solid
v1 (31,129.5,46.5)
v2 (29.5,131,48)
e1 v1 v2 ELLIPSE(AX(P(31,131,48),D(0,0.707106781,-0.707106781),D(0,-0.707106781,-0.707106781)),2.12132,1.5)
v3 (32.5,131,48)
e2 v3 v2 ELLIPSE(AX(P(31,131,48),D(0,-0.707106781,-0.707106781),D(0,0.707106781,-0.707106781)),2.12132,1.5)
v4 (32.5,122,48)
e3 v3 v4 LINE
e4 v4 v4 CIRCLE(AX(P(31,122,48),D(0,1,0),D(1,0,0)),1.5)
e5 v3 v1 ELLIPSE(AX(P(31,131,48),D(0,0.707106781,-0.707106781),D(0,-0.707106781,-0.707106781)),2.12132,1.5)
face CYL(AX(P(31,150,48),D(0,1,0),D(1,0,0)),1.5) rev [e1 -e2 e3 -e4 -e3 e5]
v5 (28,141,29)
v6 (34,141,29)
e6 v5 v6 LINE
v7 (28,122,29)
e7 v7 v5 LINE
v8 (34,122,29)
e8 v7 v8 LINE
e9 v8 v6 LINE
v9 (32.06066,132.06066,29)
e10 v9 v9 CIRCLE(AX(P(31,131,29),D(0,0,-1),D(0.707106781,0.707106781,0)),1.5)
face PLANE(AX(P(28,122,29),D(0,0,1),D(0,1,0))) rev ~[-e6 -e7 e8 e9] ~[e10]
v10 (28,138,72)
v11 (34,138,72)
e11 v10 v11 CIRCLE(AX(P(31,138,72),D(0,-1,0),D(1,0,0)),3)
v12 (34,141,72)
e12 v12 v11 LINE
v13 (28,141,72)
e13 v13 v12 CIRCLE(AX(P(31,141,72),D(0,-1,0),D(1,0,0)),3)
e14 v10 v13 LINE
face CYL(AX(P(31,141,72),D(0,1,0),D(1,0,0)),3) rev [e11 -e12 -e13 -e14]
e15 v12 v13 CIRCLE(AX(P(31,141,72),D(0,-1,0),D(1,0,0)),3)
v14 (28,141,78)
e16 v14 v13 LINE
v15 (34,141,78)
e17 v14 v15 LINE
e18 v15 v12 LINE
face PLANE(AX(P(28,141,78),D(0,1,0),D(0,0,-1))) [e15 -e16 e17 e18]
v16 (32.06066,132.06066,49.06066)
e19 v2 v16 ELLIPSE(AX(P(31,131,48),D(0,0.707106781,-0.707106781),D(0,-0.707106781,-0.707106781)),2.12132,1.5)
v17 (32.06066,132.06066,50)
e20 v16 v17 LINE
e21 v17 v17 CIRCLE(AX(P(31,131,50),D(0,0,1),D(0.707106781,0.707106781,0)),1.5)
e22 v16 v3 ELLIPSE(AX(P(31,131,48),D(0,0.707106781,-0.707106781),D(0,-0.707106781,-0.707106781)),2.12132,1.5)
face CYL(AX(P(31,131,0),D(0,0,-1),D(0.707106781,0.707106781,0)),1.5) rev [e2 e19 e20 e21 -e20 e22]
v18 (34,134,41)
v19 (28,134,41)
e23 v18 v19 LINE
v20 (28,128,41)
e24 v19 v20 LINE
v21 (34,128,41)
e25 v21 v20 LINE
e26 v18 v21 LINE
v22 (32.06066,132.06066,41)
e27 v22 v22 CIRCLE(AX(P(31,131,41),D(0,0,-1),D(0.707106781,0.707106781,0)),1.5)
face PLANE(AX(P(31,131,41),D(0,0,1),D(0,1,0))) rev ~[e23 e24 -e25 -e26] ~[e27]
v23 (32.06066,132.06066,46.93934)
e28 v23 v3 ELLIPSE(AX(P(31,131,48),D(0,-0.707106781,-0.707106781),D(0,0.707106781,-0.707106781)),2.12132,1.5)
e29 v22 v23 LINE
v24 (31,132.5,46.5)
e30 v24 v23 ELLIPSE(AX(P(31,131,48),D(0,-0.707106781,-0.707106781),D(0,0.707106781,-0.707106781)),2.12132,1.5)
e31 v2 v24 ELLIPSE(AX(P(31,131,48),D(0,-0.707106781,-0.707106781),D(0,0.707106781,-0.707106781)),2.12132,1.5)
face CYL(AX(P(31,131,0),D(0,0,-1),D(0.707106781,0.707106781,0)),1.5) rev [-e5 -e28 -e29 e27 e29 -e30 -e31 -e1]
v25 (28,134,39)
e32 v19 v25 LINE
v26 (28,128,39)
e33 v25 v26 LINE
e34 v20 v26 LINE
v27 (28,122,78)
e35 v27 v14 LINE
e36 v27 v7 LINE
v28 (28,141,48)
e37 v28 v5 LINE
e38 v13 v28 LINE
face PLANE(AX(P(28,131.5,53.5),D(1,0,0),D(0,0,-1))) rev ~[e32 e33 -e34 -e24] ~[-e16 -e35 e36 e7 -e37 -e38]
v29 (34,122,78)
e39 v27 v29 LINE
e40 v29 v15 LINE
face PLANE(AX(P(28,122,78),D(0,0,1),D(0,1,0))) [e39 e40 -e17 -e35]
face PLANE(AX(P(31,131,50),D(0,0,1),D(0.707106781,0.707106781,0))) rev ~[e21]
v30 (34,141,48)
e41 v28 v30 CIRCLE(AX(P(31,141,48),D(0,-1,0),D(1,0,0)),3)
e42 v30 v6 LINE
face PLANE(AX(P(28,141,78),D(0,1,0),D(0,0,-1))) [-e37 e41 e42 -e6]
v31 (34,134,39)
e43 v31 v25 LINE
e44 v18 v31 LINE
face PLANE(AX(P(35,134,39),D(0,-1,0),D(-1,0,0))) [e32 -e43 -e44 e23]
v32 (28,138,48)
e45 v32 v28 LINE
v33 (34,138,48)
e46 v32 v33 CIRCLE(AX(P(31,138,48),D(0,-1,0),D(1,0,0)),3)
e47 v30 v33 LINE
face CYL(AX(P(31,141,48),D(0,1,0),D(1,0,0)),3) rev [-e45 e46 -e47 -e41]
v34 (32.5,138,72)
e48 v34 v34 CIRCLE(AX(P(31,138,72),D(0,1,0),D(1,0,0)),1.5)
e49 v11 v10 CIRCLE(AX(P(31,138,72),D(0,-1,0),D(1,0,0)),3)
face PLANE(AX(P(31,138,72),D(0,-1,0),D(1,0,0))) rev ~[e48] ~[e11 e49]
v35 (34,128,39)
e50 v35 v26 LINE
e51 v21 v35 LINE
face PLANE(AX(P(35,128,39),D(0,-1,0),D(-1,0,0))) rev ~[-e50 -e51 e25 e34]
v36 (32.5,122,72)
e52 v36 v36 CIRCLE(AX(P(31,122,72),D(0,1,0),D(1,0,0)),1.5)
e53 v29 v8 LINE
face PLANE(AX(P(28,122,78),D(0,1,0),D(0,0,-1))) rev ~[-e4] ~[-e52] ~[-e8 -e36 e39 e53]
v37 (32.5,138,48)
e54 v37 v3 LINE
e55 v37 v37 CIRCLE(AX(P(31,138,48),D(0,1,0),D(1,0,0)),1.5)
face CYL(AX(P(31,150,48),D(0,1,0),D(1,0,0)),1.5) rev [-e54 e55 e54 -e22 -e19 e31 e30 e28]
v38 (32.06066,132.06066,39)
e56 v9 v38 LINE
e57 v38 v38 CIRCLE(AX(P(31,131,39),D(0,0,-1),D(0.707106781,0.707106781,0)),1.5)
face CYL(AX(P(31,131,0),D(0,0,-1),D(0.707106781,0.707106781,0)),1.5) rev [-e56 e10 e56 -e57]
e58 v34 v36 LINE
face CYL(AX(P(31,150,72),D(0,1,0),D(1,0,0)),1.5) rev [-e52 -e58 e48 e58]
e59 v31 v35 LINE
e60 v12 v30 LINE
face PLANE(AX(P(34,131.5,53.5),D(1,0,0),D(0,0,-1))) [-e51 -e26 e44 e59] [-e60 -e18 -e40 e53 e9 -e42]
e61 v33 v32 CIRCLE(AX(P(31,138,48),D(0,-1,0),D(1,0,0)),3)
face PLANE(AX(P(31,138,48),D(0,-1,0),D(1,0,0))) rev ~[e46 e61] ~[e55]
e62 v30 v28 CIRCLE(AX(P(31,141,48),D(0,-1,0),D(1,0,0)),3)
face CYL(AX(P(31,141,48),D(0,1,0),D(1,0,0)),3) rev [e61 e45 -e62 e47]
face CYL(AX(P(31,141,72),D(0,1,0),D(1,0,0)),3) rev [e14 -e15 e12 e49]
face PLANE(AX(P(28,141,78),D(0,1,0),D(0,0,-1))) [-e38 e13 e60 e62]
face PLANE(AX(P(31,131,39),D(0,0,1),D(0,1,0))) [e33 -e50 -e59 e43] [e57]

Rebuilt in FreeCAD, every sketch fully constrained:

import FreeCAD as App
import Part
import Sketcher
from FreeCAD import Vector
Q = App.Units.Quantity


def add_polygon(sketch, points):
    """Adds a closed chain of lines whose ends are joined by coincident constraints."""
    first, n = sketch.GeometryCount, len(points)
    for a, b in zip(points, points[1:] + points[:1]):
        sketch.addGeometry(Part.LineSegment(App.Vector(*a, 0), App.Vector(*b, 0)), False)
    for i in range(n):
        sketch.addConstraint(Sketcher.Constraint("Coincident", first + i, 2, first + (i + 1) % n, 1))

doc = App.newDocument("Part")
body = doc.addObject("PartDesign::Body", "Body")

sketch1 = body.newObject("Sketcher::SketchObject", "Sketch")
sketch1.AttachmentSupport = (doc.getObject("XZ_Plane"), [""])
sketch1.MapMode = "FlatFace"
sketch1.AttachmentOffset = App.Placement(Vector(0, 0, -150), App.Rotation())
sketch1.addGeometry(Part.Circle(Vector(-31, 72, 0), Vector(0, 0, 1), 3), False)
sketch1.addConstraint([
    Sketcher.Constraint("Diameter", 0, Q("6 mm")),
    Sketcher.Constraint("DistanceX", 0, 3, -1, 1, Q("31 mm")),
    Sketcher.Constraint("DistanceY", -1, 1, 0, 3, Q("72 mm")),
])
pad1 = body.newObject("PartDesign::Pad", "Pad")
pad1.Profile = sketch1
pad1.Length = 3
body2 = doc.addObject("PartDesign::Body", "Body001")

sketch2 = body2.newObject("Sketcher::SketchObject", "Sketch001")
sketch2.AttachmentSupport = (doc.getObject("XZ_Plane001"), [""])
sketch2.MapMode = "FlatFace"
sketch2.AttachmentOffset = App.Placement(Vector(0, 0, -150), App.Rotation())
sketch2.addGeometry(Part.Circle(Vector(31, 48, 0), Vector(0, 0, 1), 3), False)
sketch2.addConstraint([
    Sketcher.Constraint("Diameter", 0, Q("6 mm")),
    Sketcher.Constraint("DistanceX", -1, 1, 0, 3, Q("31 mm")),
    Sketcher.Constraint("DistanceY", -1, 1, 0, 3, Q("48 mm")),
])
pad2 = body2.newObject("PartDesign::Pad", "Pad001")
pad2.Profile = sketch2
pad2.Length = 3
body3 = doc.addObject("PartDesign::Body", "Body002")

sketch3 = body3.newObject("Sketcher::SketchObject", "Sketch002")
sketch3.AttachmentSupport = (doc.getObject("XZ_Plane002"), [""])
sketch3.MapMode = "FlatFace"
sketch3.AttachmentOffset = App.Placement(Vector(0, 0, -150), App.Rotation())
sketch3.addGeometry(Part.Circle(Vector(31, 72, 0), Vector(0, 0, 1), 3), False)
sketch3.addConstraint([
    Sketcher.Constraint("Diameter", 0, Q("6 mm")),
    Sketcher.Constraint("DistanceX", -1, 1, 0, 3, Q("31 mm")),
    Sketcher.Constraint("DistanceY", -1, 1, 0, 3, Q("72 mm")),
])
pad3 = body3.newObject("PartDesign::Pad", "Pad002")
pad3.Profile = sketch3
pad3.Length = 3
body4 = doc.addObject("PartDesign::Body", "Body003")
body4.AllowCompound = True

sketch4 = body4.newObject("Sketcher::SketchObject", "Sketch003")
sketch4.AttachmentSupport = (doc.getObject("XZ_Plane003"), [""])
sketch4.MapMode = "FlatFace"
sketch4.AttachmentOffset = App.Placement(Vector(0, 0, -150), App.Rotation())
sketch4.addGeometry(Part.Circle(Vector(-31, 48, 0), Vector(0, 0, 1), 3), False)
sketch4.addConstraint([
    Sketcher.Constraint("Diameter", 0, Q("6 mm")),
    Sketcher.Constraint("DistanceX", 0, 3, -1, 1, Q("31 mm")),
    Sketcher.Constraint("DistanceY", -1, 1, 0, 3, Q("48 mm")),
])
pad4 = body4.newObject("PartDesign::Pad", "Pad003")
pad4.Profile = sketch4
pad4.Length = 3
doc.recompute()

boolean = body4.newObject("PartDesign::Boolean", "Boolean")
boolean.Type = "Fuse"
boolean.addObjects([body])
doc.recompute()

boolean2 = body4.newObject("PartDesign::Boolean", "Boolean001")
boolean2.Type = "Fuse"
boolean2.addObjects([body2])
doc.recompute()

boolean3 = body4.newObject("PartDesign::Boolean", "Boolean002")
boolean3.Type = "Fuse"
boolean3.addObjects([body3])
body5 = doc.addObject("PartDesign::Body", "Body004")
body5.AllowCompound = True
doc.recompute()

body4.Placement = App.Placement(Vector(0, -9, 0), App.Rotation(Vector(0, 0, 1), 0))
boolean4 = body5.newObject("PartDesign::Boolean", "Boolean003")
boolean4.Type = "Fuse"
boolean4.addObjects([body4])
body6 = doc.addObject("PartDesign::Body", "Body005")

sketch5 = body6.newObject("Sketcher::SketchObject", "Sketch004")
sketch5.AttachmentSupport = (doc.getObject("XZ_Plane005"), [""])
sketch5.MapMode = "FlatFace"
sketch5.AttachmentOffset = App.Placement(Vector(0, 0, -150), App.Rotation())
sketch5.addGeometry(Part.Circle(Vector(-31, 72, 0), Vector(0, 0, 1), 1.5), False)
sketch5.addConstraint([
    Sketcher.Constraint("Diameter", 0, Q("3 mm")),
    Sketcher.Constraint("DistanceX", 0, 3, -1, 1, Q("31 mm")),
    Sketcher.Constraint("DistanceY", -1, 1, 0, 3, Q("72 mm")),
])
pad5 = body6.newObject("PartDesign::Pad", "Pad004")
pad5.Profile = sketch5
pad5.Length = 50
body7 = doc.addObject("PartDesign::Body", "Body006")

sketch6 = body7.newObject("Sketcher::SketchObject", "Sketch005")
sketch6.AttachmentSupport = (doc.getObject("XZ_Plane006"), [""])
sketch6.MapMode = "FlatFace"
sketch6.AttachmentOffset = App.Placement(Vector(0, 0, -150), App.Rotation())
sketch6.addGeometry(Part.Circle(Vector(31, 48, 0), Vector(0, 0, 1), 1.5), False)
sketch6.addConstraint([
    Sketcher.Constraint("Diameter", 0, Q("3 mm")),
    Sketcher.Constraint("DistanceX", -1, 1, 0, 3, Q("31 mm")),
    Sketcher.Constraint("DistanceY", -1, 1, 0, 3, Q("48 mm")),
])
pad6 = body7.newObject("PartDesign::Pad", "Pad005")
pad6.Profile = sketch6
pad6.Length = 50
body8 = doc.addObject("PartDesign::Body", "Body007")

sketch7 = body8.newObject("Sketcher::SketchObject", "Sketch006")
sketch7.AttachmentSupport = (doc.getObject("XZ_Plane007"), [""])
sketch7.MapMode = "FlatFace"
sketch7.AttachmentOffset = App.Placement(Vector(0, 0, -150), App.Rotation())
sketch7.addGeometry(Part.Circle(Vector(31, 72, 0), Vector(0, 0, 1), 1.5), False)
sketch7.addConstraint([
    Sketcher.Constraint("Diameter", 0, Q("3 mm")),
    Sketcher.Constraint("DistanceX", -1, 1, 0, 3, Q("31 mm")),
    Sketcher.Constraint("DistanceY", -1, 1, 0, 3, Q("72 mm")),
])
pad7 = body8.newObject("PartDesign::Pad", "Pad006")
pad7.Profile = sketch7
pad7.Length = 50
body9 = doc.addObject("PartDesign::Body", "Body008")
body9.AllowCompound = True

sketch8 = body9.newObject("Sketcher::SketchObject", "Sketch007")
sketch8.AttachmentSupport = (doc.getObject("XZ_Plane008"), [""])
sketch8.MapMode = "FlatFace"
sketch8.AttachmentOffset = App.Placement(Vector(0, 0, -150), App.Rotation())
sketch8.addGeometry(Part.Circle(Vector(-31, 48, 0), Vector(0, 0, 1), 1.5), False)
sketch8.addConstraint([
    Sketcher.Constraint("Diameter", 0, Q("3 mm")),
    Sketcher.Constraint("DistanceX", 0, 3, -1, 1, Q("31 mm")),
    Sketcher.Constraint("DistanceY", -1, 1, 0, 3, Q("48 mm")),
])
pad8 = body9.newObject("PartDesign::Pad", "Pad007")
pad8.Profile = sketch8
pad8.Length = 50
doc.recompute()

boolean5 = body9.newObject("PartDesign::Boolean", "Boolean004")
boolean5.Type = "Fuse"
boolean5.addObjects([body6])
doc.recompute()

boolean6 = body9.newObject("PartDesign::Boolean", "Boolean005")
boolean6.Type = "Fuse"
boolean6.addObjects([body7])
doc.recompute()

boolean7 = body9.newObject("PartDesign::Boolean", "Boolean006")
boolean7.Type = "Fuse"
boolean7.addObjects([body8])
body10 = doc.addObject("PartDesign::Body", "Body009")

sketch9 = body10.newObject("Sketcher::SketchObject", "Sketch008")
sketch9.AttachmentSupport = (doc.getObject("XY_Plane009"), [""])
sketch9.MapMode = "FlatFace"
sketch9.AttachmentOffset = App.Placement(Vector(0, 0, 39), App.Rotation())
add_polygon(sketch9, [(27, 92), (35, 92), (35, 98), (27, 98)])
sketch9.addConstraint([
    Sketcher.Constraint("Horizontal", 0),
    Sketcher.Constraint("Vertical", 1),
    Sketcher.Constraint("Horizontal", 2),
    Sketcher.Constraint("Vertical", 3),
    Sketcher.Constraint("DistanceX", 0, 1, 0, 2, Q("8 mm")),
    Sketcher.Constraint("DistanceY", 1, 1, 1, 2, Q("6 mm")),
    Sketcher.Constraint("DistanceX", -1, 1, 0, 2, Q("35 mm")),
    Sketcher.Constraint("DistanceY", -1, 1, 0, 2, Q("92 mm")),
])
pad9 = body10.newObject("PartDesign::Pad", "Pad008")
pad9.Profile = sketch9
pad9.Length = 2
body11 = doc.addObject("PartDesign::Body", "Body010")

sketch10 = body11.newObject("Sketcher::SketchObject", "Sketch009")
sketch10.AttachmentSupport = (doc.getObject("XY_Plane010"), [""])
sketch10.MapMode = "FlatFace"
sketch10.addGeometry(Part.Circle(Vector(0, 0, 0), Vector(0, 0, 1), 1.5), False)
sketch10.addConstraint([
    Sketcher.Constraint("Coincident", 0, 3, -1, 1),
    Sketcher.Constraint("Diameter", 0, Q("3 mm")),
])
pad10 = body11.newObject("PartDesign::Pad", "Pad009")
pad10.Profile = sketch10
pad10.Length = 50
body12 = doc.addObject("PartDesign::Body", "Body011")
doc.recompute()

body11.Placement = App.Placement(Vector(31, 95, 0), App.Rotation(Vector(0, 0, 1), 45))
boolean8 = body12.newObject("PartDesign::Boolean", "Boolean007")
boolean8.Type = "Fuse"
boolean8.addObjects([body11])
body13 = doc.addObject("PartDesign::Body", "Body012")

sketch11 = body13.newObject("Sketcher::SketchObject", "Sketch010")
sketch11.AttachmentSupport = (doc.getObject("YZ_Plane012"), [""])
sketch11.MapMode = "FlatFace"
sketch11.AttachmentOffset = App.Placement(Vector(0, 0, 28), App.Rotation())
add_polygon(sketch11, [(105, 78), (86, 78), (86, 29), (105, 29)])
sketch11.addConstraint([
    Sketcher.Constraint("Horizontal", 0),
    Sketcher.Constraint("Vertical", 1),
    Sketcher.Constraint("Horizontal", 2),
    Sketcher.Constraint("Vertical", 3),
    Sketcher.Constraint("DistanceX", 0, 2, 0, 1, Q("19 mm")),
    Sketcher.Constraint("DistanceY", 1, 2, 1, 1, Q("49 mm")),
    Sketcher.Constraint("DistanceX", -1, 1, 0, 2, Q("86 mm")),
    Sketcher.Constraint("DistanceY", -1, 1, 0, 2, Q("78 mm")),
])
pad11 = body13.newObject("PartDesign::Pad", "Pad010")
pad11.Profile = sketch11
pad11.Length = 6
doc.recompute()

boolean9 = body13.newObject("PartDesign::Boolean", "Boolean008")
boolean9.Type = "Cut"
boolean9.addObjects([body12])
doc.recompute()

boolean10 = body13.newObject("PartDesign::Boolean", "Boolean009")
boolean10.Type = "Cut"
boolean10.addObjects([body10])
body14 = doc.addObject("PartDesign::Body", "Body013")
doc.recompute()

body13.Placement = App.Placement(Vector(0, 36, 0), App.Rotation(Vector(0, 0, 1), 0))
boolean11 = body14.newObject("PartDesign::Boolean", "Boolean010")
boolean11.Type = "Fuse"
boolean11.addObjects([body13])
doc.recompute()

boolean12 = body14.newObject("PartDesign::Boolean", "Boolean011")
boolean12.Type = "Cut"
boolean12.addObjects([body9])
doc.recompute()

boolean13 = body14.newObject("PartDesign::Boolean", "Boolean012")
boolean13.Type = "Cut"
boolean13.addObjects([body5])

doc.recompute()
